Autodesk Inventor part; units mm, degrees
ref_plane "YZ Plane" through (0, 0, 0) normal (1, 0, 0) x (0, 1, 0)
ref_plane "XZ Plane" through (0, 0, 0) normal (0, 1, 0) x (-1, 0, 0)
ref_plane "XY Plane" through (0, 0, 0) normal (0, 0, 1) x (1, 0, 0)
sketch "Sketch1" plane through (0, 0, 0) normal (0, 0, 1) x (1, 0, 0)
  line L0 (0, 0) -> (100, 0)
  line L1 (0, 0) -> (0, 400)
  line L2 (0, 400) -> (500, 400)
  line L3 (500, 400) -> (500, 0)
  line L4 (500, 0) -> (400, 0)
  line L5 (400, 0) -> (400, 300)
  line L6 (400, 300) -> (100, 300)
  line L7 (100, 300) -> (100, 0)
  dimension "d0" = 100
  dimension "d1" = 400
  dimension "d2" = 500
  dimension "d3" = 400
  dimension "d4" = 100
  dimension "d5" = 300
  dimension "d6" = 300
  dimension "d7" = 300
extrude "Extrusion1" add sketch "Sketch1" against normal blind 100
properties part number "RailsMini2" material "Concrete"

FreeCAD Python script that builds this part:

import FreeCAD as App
import Part
import Sketcher

V = App.Vector

doc = App.newDocument("Part")
params = doc.addObject("Spreadsheet::Sheet", "Params")
for row, (alias, value) in enumerate([
    ("sketch1_width", "100 mm"),
    ("sketch1_width2", "300 mm"),
    ("sketch1_height", "400 mm"),
    ("pad1_length", "100 mm"),
], start=1):
    params.set(f"A{row}", alias)
    params.set(f"B{row}", "=" + value)
    params.setAlias(f"B{row}", alias)

body = doc.addObject("PartDesign::Body", "Body")

# Sketch on XY plane
sketch1 = doc.addObject("Sketcher::SketchObject", "Sketch")
body.addObject(sketch1)
sketch1.AttachmentSupport = (doc.XY_Plane, [""])
sketch1.MapMode = "FlatFace"
sketch1.addGeometry(Part.LineSegment(V(0, 400, 0), V(0, 0, 0)), False)
sketch1.addGeometry(Part.LineSegment(V(0, 0, 0), V(100, 0, 0)), False)
sketch1.addGeometry(Part.LineSegment(V(100, 0, 0), V(100, 300, 0)), False)
sketch1.addGeometry(Part.LineSegment(V(100, 300, 0), V(400, 300, 0)), False)
sketch1.addGeometry(Part.LineSegment(V(400, 300, 0), V(400, 0, 0)), False)
sketch1.addGeometry(Part.LineSegment(V(400, 0, 0), V(500, 0, 0)), False)
sketch1.addGeometry(Part.LineSegment(V(500, 0, 0), V(500, 400, 0)), False)
sketch1.addGeometry(Part.LineSegment(V(500, 400, 0), V(0, 400, 0)), False)
sketch1.addConstraint(Sketcher.Constraint("Coincident", 0, 2, 1, 1))
sketch1.addConstraint(Sketcher.Constraint("Coincident", 1, 2, 2, 1))
sketch1.addConstraint(Sketcher.Constraint("Coincident", 2, 2, 3, 1))
sketch1.addConstraint(Sketcher.Constraint("Coincident", 3, 2, 4, 1))
sketch1.addConstraint(Sketcher.Constraint("Coincident", 4, 2, 5, 1))
sketch1.addConstraint(Sketcher.Constraint("Coincident", 5, 2, 6, 1))
sketch1.addConstraint(Sketcher.Constraint("Coincident", 6, 2, 7, 1))
sketch1.addConstraint(Sketcher.Constraint("Coincident", 7, 2, 0, 1))
sketch1.addConstraint(Sketcher.Constraint("Vertical", 0))
sketch1.addConstraint(Sketcher.Constraint("Horizontal", 1))
sketch1.addConstraint(Sketcher.Constraint("Vertical", 2))
sketch1.addConstraint(Sketcher.Constraint("Horizontal", 3))
sketch1.addConstraint(Sketcher.Constraint("Vertical", 4))
sketch1.addConstraint(Sketcher.Constraint("Horizontal", 5))
sketch1.addConstraint(Sketcher.Constraint("Vertical", 6))
sketch1.addConstraint(Sketcher.Constraint("Horizontal", 7))
sketch1.addConstraint(Sketcher.Constraint("Coincident", 0, 2, -1, 1))
sketch1.addConstraint(Sketcher.Constraint("PointOnObject", 4, 2, -1))
sketch1.addConstraint(Sketcher.Constraint("Equal", 1, 5))
sketch1.addConstraint(Sketcher.Constraint("Equal", 3, 2))
sketch1.addConstraint(Sketcher.Constraint("DistanceX", 1, 1, 1, 2, 100.0))
sketch1.addConstraint(Sketcher.Constraint("DistanceX", 3, 1, 3, 2, 300.0))
sketch1.addConstraint(Sketcher.Constraint("DistanceY", 0, 2, 0, 1, 400.0))
sketch1.setExpression("Constraints[20]", "Params.sketch1_width")
sketch1.setExpression("Constraints[21]", "Params.sketch1_width2")
sketch1.setExpression("Constraints[22]", "Params.sketch1_height")
pad1 = doc.addObject("PartDesign::Pad", "Pad")
body.addObject(pad1)
pad1.Profile = sketch1
pad1.setExpression("Length", "Params.pad1_length")
pad1.Reversed = True

doc.recompute()
